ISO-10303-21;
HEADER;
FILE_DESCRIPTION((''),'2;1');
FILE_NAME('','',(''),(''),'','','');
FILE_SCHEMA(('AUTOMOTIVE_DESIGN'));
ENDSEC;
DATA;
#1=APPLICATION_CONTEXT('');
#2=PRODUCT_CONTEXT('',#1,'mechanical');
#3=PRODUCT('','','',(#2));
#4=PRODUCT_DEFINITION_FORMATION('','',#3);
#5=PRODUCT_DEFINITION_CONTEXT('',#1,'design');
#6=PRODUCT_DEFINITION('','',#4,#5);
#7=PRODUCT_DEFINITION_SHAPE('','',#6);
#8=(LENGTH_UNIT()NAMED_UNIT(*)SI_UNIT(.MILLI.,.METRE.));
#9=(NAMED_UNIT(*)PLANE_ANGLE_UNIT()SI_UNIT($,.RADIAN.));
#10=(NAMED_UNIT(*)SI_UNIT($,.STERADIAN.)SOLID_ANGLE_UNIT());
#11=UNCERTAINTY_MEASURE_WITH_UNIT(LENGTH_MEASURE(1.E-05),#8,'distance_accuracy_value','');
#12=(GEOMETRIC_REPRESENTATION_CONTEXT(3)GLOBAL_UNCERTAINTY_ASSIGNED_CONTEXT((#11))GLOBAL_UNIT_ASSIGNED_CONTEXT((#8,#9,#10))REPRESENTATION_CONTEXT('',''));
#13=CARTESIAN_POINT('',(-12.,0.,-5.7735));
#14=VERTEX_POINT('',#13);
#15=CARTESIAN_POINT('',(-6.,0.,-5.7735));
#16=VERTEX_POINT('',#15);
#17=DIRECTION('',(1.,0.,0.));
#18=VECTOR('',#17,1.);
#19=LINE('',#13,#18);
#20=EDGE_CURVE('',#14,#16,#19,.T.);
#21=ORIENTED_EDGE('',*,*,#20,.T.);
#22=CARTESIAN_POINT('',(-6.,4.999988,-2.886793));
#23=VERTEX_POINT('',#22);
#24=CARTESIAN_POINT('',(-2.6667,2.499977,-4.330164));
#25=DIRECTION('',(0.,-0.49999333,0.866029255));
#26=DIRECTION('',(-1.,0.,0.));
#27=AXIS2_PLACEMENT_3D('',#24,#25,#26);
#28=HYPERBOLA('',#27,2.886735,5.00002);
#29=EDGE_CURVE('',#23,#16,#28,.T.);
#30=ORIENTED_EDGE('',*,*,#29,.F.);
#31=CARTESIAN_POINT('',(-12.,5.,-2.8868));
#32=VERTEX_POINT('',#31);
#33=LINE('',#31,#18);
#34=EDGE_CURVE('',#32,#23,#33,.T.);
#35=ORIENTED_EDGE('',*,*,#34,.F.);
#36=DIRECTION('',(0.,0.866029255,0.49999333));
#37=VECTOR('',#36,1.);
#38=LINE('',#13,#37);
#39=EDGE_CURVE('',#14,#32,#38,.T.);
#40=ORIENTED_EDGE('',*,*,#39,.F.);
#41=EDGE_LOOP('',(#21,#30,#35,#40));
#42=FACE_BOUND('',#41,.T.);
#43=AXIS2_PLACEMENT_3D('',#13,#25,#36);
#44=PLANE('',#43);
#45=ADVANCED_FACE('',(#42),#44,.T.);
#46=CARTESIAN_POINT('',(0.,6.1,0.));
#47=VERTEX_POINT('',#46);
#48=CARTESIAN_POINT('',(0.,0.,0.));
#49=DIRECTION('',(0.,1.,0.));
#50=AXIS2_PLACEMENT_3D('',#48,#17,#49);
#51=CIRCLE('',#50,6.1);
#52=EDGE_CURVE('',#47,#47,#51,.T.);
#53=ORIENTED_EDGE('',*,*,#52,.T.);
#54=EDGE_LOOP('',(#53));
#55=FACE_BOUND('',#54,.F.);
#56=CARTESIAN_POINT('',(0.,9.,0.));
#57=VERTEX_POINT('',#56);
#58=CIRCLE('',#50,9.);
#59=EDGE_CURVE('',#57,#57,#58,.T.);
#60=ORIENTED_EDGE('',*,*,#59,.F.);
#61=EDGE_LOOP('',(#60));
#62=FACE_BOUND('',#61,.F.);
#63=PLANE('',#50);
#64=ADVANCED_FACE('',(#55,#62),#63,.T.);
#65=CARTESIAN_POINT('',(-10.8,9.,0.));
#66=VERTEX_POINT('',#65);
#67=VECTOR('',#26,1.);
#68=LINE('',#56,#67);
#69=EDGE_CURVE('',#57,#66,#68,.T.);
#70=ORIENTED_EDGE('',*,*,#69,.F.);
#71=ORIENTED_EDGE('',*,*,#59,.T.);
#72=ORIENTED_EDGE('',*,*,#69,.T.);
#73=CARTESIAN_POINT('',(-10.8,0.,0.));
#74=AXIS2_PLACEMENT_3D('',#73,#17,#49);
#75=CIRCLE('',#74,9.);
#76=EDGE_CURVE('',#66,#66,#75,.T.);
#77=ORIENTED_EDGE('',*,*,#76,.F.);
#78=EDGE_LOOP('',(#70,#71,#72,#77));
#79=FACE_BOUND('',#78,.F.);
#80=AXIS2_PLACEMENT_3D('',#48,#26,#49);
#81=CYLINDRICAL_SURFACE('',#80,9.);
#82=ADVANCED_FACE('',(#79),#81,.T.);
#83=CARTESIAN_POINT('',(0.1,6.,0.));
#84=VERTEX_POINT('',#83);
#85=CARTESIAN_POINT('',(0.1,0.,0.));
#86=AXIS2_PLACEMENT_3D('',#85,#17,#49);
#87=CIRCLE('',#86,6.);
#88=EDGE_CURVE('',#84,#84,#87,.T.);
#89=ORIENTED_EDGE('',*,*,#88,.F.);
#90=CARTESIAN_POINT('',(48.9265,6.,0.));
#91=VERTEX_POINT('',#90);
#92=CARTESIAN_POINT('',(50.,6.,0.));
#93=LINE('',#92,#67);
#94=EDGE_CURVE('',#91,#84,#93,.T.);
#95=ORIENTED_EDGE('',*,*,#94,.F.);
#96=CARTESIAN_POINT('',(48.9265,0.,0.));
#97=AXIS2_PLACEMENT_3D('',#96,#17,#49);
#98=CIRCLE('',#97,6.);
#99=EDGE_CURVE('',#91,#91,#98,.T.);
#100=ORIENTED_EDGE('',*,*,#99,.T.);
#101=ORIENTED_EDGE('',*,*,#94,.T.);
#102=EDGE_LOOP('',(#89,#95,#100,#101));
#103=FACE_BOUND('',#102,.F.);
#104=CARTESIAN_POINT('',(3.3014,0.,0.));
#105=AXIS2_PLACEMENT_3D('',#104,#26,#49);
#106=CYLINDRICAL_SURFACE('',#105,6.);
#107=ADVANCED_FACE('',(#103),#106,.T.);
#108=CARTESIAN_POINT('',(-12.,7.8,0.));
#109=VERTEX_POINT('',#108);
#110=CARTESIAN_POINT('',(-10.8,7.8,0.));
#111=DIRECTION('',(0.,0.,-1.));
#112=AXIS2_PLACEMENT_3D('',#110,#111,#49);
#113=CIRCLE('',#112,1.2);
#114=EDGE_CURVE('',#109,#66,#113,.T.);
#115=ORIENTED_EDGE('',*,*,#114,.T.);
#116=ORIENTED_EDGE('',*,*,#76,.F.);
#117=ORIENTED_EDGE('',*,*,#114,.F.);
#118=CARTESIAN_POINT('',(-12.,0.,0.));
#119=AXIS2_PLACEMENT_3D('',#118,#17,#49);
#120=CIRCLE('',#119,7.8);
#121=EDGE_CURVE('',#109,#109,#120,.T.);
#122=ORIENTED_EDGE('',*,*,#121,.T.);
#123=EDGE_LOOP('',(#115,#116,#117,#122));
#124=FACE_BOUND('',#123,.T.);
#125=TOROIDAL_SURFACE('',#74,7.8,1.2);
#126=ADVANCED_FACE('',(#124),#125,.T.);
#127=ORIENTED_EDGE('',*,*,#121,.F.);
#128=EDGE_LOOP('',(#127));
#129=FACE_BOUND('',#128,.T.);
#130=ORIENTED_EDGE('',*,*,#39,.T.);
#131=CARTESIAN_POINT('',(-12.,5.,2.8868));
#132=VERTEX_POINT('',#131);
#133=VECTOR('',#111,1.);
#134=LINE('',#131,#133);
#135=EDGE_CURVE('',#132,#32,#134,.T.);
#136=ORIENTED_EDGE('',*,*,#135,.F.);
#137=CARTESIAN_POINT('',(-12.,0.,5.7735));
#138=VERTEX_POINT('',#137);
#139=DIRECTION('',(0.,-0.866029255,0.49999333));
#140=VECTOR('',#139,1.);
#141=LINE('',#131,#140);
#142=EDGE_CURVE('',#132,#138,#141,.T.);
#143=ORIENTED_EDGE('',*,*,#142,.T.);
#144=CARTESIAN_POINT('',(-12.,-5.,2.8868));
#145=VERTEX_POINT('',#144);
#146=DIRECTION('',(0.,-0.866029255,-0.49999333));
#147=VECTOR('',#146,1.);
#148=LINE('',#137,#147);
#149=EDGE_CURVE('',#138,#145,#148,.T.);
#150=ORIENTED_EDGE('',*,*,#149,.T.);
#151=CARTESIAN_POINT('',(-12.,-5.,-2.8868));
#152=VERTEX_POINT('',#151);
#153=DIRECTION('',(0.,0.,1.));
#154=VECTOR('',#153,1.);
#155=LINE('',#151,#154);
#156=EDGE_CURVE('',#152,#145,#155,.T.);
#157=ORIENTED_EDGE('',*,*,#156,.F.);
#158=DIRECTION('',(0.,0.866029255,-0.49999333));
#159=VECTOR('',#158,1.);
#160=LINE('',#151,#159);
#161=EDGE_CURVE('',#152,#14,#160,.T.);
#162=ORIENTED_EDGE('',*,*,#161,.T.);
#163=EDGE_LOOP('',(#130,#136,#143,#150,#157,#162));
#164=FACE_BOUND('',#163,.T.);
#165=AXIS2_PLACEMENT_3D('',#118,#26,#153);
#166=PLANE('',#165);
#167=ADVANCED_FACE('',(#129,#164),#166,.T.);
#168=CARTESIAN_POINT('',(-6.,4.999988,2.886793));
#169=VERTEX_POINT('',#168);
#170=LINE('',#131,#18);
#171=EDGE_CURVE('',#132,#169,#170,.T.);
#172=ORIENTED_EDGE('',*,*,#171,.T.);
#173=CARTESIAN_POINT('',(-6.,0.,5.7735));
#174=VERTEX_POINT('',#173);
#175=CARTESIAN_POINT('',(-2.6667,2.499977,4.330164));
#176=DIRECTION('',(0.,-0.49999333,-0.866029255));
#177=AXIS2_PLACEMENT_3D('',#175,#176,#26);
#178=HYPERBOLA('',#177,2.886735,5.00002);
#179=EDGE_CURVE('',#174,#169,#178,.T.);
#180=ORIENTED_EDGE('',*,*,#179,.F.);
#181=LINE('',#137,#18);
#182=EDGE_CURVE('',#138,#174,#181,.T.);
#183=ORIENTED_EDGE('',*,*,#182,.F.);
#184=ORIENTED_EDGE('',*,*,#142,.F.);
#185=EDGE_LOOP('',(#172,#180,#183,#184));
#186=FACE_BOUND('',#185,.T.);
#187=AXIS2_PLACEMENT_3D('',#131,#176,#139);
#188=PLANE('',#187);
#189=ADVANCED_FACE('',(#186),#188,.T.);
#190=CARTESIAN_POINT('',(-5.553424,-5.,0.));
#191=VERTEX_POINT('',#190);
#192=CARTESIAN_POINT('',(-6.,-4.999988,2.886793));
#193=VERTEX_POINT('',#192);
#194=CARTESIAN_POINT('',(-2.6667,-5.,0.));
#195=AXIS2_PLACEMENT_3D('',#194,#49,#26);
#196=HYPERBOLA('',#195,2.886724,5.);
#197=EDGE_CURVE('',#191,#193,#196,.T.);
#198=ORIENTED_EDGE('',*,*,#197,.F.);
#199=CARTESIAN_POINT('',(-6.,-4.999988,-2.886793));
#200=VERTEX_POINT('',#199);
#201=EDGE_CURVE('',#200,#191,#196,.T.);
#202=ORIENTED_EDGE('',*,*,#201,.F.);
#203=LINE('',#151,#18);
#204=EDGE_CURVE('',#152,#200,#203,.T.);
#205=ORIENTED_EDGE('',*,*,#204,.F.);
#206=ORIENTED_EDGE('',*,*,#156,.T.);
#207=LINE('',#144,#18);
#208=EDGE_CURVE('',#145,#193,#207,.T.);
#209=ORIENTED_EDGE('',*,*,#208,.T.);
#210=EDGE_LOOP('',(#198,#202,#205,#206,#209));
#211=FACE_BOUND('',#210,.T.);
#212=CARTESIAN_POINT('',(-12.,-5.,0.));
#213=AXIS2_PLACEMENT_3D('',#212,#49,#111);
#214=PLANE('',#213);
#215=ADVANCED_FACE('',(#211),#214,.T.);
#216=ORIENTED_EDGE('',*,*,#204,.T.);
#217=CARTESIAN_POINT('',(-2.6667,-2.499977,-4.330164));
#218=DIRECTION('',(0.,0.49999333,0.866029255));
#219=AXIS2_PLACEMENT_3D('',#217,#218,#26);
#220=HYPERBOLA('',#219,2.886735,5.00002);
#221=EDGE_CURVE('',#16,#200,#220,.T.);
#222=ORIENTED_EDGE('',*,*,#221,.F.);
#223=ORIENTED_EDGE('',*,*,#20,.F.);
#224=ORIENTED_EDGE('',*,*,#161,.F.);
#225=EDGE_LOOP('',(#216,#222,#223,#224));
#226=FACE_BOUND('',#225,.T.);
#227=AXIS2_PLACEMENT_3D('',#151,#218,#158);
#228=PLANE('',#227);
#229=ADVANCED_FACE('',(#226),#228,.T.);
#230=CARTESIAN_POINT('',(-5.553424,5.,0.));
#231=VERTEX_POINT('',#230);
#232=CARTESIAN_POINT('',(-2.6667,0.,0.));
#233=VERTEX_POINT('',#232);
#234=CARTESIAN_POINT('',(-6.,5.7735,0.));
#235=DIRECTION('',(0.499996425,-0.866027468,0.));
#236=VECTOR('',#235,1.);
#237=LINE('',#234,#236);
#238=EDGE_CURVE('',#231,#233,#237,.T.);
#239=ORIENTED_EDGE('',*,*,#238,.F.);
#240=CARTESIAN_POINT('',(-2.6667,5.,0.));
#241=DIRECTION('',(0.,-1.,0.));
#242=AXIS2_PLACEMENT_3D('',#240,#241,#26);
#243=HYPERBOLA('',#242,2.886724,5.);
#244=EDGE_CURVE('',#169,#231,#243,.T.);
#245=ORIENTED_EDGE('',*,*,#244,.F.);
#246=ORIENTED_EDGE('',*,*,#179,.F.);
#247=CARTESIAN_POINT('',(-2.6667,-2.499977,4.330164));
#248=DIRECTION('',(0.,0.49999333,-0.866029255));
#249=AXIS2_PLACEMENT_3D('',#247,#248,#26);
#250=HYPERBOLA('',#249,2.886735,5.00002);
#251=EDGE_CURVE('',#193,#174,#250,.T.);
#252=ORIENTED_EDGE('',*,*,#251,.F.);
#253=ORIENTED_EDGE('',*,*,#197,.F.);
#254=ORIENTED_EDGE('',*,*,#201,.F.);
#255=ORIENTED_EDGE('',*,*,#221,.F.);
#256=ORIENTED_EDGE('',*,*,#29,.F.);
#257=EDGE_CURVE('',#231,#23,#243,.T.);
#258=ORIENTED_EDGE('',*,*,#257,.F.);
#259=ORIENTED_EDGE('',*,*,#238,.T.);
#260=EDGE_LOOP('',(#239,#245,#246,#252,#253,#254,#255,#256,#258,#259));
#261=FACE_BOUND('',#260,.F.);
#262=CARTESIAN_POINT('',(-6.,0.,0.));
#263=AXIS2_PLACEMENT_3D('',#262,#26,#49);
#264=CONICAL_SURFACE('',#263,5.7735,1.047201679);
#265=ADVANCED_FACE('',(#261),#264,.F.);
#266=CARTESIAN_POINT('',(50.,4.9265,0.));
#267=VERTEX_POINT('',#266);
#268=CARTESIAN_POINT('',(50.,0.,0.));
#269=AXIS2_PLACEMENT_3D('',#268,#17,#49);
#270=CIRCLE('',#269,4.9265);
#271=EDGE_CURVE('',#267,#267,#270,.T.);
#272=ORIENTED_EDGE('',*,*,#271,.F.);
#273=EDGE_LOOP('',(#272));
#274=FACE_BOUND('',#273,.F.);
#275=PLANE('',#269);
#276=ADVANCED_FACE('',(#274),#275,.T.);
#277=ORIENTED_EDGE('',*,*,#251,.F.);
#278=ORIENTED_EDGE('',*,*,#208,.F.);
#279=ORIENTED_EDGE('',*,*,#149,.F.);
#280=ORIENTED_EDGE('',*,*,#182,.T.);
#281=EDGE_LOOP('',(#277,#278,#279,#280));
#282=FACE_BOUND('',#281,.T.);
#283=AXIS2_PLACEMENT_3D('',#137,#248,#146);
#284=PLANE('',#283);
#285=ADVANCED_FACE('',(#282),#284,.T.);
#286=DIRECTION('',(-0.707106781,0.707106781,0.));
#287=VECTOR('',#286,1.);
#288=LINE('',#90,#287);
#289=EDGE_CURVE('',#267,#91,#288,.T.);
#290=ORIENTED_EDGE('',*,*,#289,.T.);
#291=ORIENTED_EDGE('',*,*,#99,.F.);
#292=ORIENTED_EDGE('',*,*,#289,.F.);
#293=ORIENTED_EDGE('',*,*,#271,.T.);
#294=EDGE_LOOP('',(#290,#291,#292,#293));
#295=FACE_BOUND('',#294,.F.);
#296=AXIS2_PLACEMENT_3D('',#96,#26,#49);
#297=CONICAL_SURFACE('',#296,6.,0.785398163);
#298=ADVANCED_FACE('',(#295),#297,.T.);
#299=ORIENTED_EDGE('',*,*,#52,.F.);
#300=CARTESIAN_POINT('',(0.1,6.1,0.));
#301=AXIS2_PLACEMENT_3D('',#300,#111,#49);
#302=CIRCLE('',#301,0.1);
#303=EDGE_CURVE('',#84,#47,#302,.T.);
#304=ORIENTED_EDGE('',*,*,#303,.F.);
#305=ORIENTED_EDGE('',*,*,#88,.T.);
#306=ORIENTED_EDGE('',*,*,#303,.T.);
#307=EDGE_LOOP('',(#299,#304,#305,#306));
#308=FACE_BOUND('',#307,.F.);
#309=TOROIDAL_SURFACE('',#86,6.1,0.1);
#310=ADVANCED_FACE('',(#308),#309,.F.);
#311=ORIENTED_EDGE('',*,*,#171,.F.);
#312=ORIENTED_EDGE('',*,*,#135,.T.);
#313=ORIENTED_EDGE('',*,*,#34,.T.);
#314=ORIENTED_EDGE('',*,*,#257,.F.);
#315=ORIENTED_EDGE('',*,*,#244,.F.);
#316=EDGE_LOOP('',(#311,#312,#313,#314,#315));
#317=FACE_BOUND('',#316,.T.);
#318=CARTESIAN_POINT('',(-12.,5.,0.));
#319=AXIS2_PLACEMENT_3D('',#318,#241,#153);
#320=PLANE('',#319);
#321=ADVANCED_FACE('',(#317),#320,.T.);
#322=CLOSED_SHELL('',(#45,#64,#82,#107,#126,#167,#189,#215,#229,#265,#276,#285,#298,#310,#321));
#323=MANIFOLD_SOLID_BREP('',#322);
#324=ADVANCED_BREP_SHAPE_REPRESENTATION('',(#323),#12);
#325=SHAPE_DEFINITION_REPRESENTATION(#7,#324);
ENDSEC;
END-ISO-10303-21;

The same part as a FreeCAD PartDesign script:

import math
import FreeCAD as App
import Part
import Sketcher
from FreeCAD import Vector
Q = App.Units.Quantity


def edges_at(feature, points):
    """Names of the edges that pass closest to the given points."""
    edges = feature.Shape.Edges
    near = lambda p: min(range(len(edges)), key=lambda i: edges[i].distToShape(Part.Vertex(*p))[0])
    return sorted({f"Edge{near(p) + 1}" for p in points})


def add_polygon(sketch, points):
    """Adds a closed chain of lines whose ends are joined by coincident constraints."""
    first, n = sketch.GeometryCount, len(points)
    for a, b in zip(points, points[1:] + points[:1]):
        sketch.addGeometry(Part.LineSegment(App.Vector(*a, 0), App.Vector(*b, 0)), False)
    for i in range(n):
        sketch.addConstraint(Sketcher.Constraint("Coincident", first + i, 2, first + (i + 1) % n, 1))

doc = App.newDocument("Part")
body = doc.addObject("PartDesign::Body", "Body")

# Sketch on XY plane
sketch1 = body.newObject("Sketcher::SketchObject", "Sketch")
sketch1.AttachmentSupport = (doc.getObject("XY_Plane"), [""])
sketch1.MapMode = "FlatFace"
add_polygon(sketch1, [(-6, 5.7735), (-2.6667, 0), (50, 0), (50, 6), (0, 6), (0, 9), (-12, 9), (-12, 5.7735)])  # lines 0-7
sketch1.addConstraint(Sketcher.Constraint("Horizontal", 1))
sketch1.addConstraint(Sketcher.Constraint("Vertical", 2))
sketch1.addConstraint(Sketcher.Constraint("Horizontal", 3))
sketch1.addConstraint(Sketcher.Constraint("Vertical", 4))
sketch1.addConstraint(Sketcher.Constraint("Horizontal", 5))
sketch1.addConstraint(Sketcher.Constraint("Vertical", 6))
sketch1.addConstraint(Sketcher.Constraint("Horizontal", 7))
sketch1.addConstraint(Sketcher.Constraint("PointOnObject", 0, 2, -1))
sketch1.addConstraint(Sketcher.Constraint("PointOnObject", 3, 2, -2))
sketch1.addConstraint(Sketcher.Constraint("Equal", 7, 2))
sketch1.addConstraint(Sketcher.Constraint("DistanceX", 3, 2, 3, 1, Q("50 mm")))
sketch1.addConstraint(Sketcher.Constraint("DistanceX", 5, 2, 5, 1, Q("12 mm")))
sketch1.addConstraint(Sketcher.Constraint("DistanceX", 7, 1, 7, 2, Q("6 mm")))
sketch1.addConstraint(Sketcher.Constraint("Angle", 0, Q("-60.0002 deg")))
sketch1.addConstraint(Sketcher.Constraint("DistanceY", 4, 1, 4, 2, Q("3 mm")))
sketch1.addConstraint(Sketcher.Constraint("DistanceX", 1, 1, 1, 2, Q("52.6667 mm")))
revolution = body.newObject("PartDesign::Revolution", "Revolution")
revolution.Profile = sketch1
revolution.ReferenceAxis = (sketch1, ["H_Axis"])
revolution.Angle = 360

# Sketch on YZ plane
sketch2 = body.newObject("Sketcher::SketchObject", "Sketch001")
sketch2.AttachmentSupport = (doc.getObject("YZ_Plane"), [""])
sketch2.MapMode = "FlatFace"
sketch2.AttachmentOffset = App.Placement(Vector(0, 0, -12), App.Rotation())
sketch2.addGeometry(Part.LineSegment(Vector(5, 2.8868, 0), Vector(0, 5.7735, 0)), False)
sketch2.addGeometry(Part.ArcOfCircle(Part.Circle(Vector(0, 0, 0), Vector(0, 0, 1), 5.7735), math.radians(30.000418), math.radians(90)), False)
sketch2.addGeometry(Part.ArcOfCircle(Part.Circle(Vector(0, 0, 0), Vector(0, 0, 1), 5.7735), math.radians(90), math.radians(149.999582)), False)
sketch2.addGeometry(Part.LineSegment(Vector(0, 5.7735, 0), Vector(-5, 2.8868, 0)), False)
sketch2.addGeometry(Part.ArcOfCircle(Part.Circle(Vector(0, 0, 0), Vector(0, 0, 1), 5.7735), math.radians(-30.000418), math.radians(30.000418)), False)
sketch2.addGeometry(Part.LineSegment(Vector(5, 2.8868, 0), Vector(5, -2.8868, 0)), False)
sketch2.addGeometry(Part.LineSegment(Vector(-5, 2.8868, 0), Vector(-5, -2.8868, 0)), False)
sketch2.addGeometry(Part.ArcOfCircle(Part.Circle(Vector(0, 0, 0), Vector(0, 0, 1), 5.7735), math.radians(149.999582), math.radians(210.000418)), False)
sketch2.addGeometry(Part.LineSegment(Vector(-5, -2.8868, 0), Vector(0, -5.7735, 0)), False)
sketch2.addGeometry(Part.ArcOfCircle(Part.Circle(Vector(0, 0, 0), Vector(0, 0, 1), 5.7735), math.radians(-149.999582), math.radians(-90)), False)
sketch2.addGeometry(Part.ArcOfCircle(Part.Circle(Vector(0, 0, 0), Vector(0, 0, 1), 5.7735), math.radians(-90), math.radians(-30.000418)), False)
sketch2.addGeometry(Part.LineSegment(Vector(0, -5.7735, 0), Vector(5, -2.8868, 0)), False)
sketch2.addConstraint(Sketcher.Constraint("Coincident", 0, 1, 1, 1))
sketch2.addConstraint(Sketcher.Constraint("Coincident", 1, 2, 0, 2))
sketch2.addConstraint(Sketcher.Constraint("Coincident", 2, 1, 3, 1))
sketch2.addConstraint(Sketcher.Constraint("Coincident", 3, 2, 2, 2))
sketch2.addConstraint(Sketcher.Constraint("Coincident", 4, 1, 5, 2))
sketch2.addConstraint(Sketcher.Constraint("Coincident", 5, 1, 4, 2))
sketch2.addConstraint(Sketcher.Constraint("Coincident", 6, 1, 7, 1))
sketch2.addConstraint(Sketcher.Constraint("Coincident", 7, 2, 6, 2))
sketch2.addConstraint(Sketcher.Constraint("Coincident", 8, 1, 9, 1))
sketch2.addConstraint(Sketcher.Constraint("Coincident", 9, 2, 8, 2))
sketch2.addConstraint(Sketcher.Constraint("Coincident", 10, 1, 11, 1))
sketch2.addConstraint(Sketcher.Constraint("Coincident", 11, 2, 10, 2))
sketch2.addConstraint(Sketcher.Constraint("Vertical", 5))
sketch2.addConstraint(Sketcher.Constraint("Vertical", 6))
sketch2.addConstraint(Sketcher.Constraint("Coincident", 1, 3, -1, 1))
sketch2.addConstraint(Sketcher.Constraint("Coincident", 2, 3, -1, 1))
sketch2.addConstraint(Sketcher.Constraint("Coincident", 4, 3, -1, 1))
sketch2.addConstraint(Sketcher.Constraint("Coincident", 7, 3, -1, 1))
sketch2.addConstraint(Sketcher.Constraint("Coincident", 9, 3, -1, 1))
sketch2.addConstraint(Sketcher.Constraint("Coincident", 10, 3, -1, 1))
sketch2.addConstraint(Sketcher.Constraint("Coincident", 2, 1, 1, 2))
sketch2.addConstraint(Sketcher.Constraint("Coincident", 5, 1, 0, 1))
sketch2.addConstraint(Sketcher.Constraint("Coincident", 6, 1, 3, 2))
sketch2.addConstraint(Sketcher.Constraint("Coincident", 8, 1, 7, 2))
sketch2.addConstraint(Sketcher.Constraint("Coincident", 10, 1, 9, 2))
sketch2.addConstraint(Sketcher.Constraint("PointOnObject", 1, 2, -2))
sketch2.addConstraint(Sketcher.Constraint("PointOnObject", 9, 2, -2))
sketch2.addConstraint(Sketcher.Constraint("Parallel", 0, 8))
sketch2.addConstraint(Sketcher.Constraint("Parallel", 3, 11))
sketch2.addConstraint(Sketcher.Constraint("Angle", 0, Q("150.0004 deg")))
sketch2.addConstraint(Sketcher.Constraint("DistanceX", -1, 1, 0, 1, Q("5 mm")))
pad1 = body.newObject("PartDesign::Pad", "Pad")
pad1.Profile = sketch2
pad1.Length = 6.4466
doc.recompute()

fillet = body.newObject("PartDesign::Fillet", "Fillet")
fillet.Base = (pad1, edges_at(pad1, [(-12, -9, 0)]))
fillet.Radius = 1.2
doc.recompute()

chamfer = body.newObject("PartDesign::Chamfer", "Chamfer")
chamfer.Base = (fillet, edges_at(fillet, [(50, -6, 0)]))
chamfer.ChamferType = "Two distances"
chamfer.Size = 1.0735
chamfer.Size2 = 1.0735
doc.recompute()

fillet2 = body.newObject("PartDesign::Fillet", "Fillet001")
fillet2.Base = (chamfer, edges_at(chamfer, [(0, -6, 0)]))
fillet2.Radius = 0.1

doc.recompute()
